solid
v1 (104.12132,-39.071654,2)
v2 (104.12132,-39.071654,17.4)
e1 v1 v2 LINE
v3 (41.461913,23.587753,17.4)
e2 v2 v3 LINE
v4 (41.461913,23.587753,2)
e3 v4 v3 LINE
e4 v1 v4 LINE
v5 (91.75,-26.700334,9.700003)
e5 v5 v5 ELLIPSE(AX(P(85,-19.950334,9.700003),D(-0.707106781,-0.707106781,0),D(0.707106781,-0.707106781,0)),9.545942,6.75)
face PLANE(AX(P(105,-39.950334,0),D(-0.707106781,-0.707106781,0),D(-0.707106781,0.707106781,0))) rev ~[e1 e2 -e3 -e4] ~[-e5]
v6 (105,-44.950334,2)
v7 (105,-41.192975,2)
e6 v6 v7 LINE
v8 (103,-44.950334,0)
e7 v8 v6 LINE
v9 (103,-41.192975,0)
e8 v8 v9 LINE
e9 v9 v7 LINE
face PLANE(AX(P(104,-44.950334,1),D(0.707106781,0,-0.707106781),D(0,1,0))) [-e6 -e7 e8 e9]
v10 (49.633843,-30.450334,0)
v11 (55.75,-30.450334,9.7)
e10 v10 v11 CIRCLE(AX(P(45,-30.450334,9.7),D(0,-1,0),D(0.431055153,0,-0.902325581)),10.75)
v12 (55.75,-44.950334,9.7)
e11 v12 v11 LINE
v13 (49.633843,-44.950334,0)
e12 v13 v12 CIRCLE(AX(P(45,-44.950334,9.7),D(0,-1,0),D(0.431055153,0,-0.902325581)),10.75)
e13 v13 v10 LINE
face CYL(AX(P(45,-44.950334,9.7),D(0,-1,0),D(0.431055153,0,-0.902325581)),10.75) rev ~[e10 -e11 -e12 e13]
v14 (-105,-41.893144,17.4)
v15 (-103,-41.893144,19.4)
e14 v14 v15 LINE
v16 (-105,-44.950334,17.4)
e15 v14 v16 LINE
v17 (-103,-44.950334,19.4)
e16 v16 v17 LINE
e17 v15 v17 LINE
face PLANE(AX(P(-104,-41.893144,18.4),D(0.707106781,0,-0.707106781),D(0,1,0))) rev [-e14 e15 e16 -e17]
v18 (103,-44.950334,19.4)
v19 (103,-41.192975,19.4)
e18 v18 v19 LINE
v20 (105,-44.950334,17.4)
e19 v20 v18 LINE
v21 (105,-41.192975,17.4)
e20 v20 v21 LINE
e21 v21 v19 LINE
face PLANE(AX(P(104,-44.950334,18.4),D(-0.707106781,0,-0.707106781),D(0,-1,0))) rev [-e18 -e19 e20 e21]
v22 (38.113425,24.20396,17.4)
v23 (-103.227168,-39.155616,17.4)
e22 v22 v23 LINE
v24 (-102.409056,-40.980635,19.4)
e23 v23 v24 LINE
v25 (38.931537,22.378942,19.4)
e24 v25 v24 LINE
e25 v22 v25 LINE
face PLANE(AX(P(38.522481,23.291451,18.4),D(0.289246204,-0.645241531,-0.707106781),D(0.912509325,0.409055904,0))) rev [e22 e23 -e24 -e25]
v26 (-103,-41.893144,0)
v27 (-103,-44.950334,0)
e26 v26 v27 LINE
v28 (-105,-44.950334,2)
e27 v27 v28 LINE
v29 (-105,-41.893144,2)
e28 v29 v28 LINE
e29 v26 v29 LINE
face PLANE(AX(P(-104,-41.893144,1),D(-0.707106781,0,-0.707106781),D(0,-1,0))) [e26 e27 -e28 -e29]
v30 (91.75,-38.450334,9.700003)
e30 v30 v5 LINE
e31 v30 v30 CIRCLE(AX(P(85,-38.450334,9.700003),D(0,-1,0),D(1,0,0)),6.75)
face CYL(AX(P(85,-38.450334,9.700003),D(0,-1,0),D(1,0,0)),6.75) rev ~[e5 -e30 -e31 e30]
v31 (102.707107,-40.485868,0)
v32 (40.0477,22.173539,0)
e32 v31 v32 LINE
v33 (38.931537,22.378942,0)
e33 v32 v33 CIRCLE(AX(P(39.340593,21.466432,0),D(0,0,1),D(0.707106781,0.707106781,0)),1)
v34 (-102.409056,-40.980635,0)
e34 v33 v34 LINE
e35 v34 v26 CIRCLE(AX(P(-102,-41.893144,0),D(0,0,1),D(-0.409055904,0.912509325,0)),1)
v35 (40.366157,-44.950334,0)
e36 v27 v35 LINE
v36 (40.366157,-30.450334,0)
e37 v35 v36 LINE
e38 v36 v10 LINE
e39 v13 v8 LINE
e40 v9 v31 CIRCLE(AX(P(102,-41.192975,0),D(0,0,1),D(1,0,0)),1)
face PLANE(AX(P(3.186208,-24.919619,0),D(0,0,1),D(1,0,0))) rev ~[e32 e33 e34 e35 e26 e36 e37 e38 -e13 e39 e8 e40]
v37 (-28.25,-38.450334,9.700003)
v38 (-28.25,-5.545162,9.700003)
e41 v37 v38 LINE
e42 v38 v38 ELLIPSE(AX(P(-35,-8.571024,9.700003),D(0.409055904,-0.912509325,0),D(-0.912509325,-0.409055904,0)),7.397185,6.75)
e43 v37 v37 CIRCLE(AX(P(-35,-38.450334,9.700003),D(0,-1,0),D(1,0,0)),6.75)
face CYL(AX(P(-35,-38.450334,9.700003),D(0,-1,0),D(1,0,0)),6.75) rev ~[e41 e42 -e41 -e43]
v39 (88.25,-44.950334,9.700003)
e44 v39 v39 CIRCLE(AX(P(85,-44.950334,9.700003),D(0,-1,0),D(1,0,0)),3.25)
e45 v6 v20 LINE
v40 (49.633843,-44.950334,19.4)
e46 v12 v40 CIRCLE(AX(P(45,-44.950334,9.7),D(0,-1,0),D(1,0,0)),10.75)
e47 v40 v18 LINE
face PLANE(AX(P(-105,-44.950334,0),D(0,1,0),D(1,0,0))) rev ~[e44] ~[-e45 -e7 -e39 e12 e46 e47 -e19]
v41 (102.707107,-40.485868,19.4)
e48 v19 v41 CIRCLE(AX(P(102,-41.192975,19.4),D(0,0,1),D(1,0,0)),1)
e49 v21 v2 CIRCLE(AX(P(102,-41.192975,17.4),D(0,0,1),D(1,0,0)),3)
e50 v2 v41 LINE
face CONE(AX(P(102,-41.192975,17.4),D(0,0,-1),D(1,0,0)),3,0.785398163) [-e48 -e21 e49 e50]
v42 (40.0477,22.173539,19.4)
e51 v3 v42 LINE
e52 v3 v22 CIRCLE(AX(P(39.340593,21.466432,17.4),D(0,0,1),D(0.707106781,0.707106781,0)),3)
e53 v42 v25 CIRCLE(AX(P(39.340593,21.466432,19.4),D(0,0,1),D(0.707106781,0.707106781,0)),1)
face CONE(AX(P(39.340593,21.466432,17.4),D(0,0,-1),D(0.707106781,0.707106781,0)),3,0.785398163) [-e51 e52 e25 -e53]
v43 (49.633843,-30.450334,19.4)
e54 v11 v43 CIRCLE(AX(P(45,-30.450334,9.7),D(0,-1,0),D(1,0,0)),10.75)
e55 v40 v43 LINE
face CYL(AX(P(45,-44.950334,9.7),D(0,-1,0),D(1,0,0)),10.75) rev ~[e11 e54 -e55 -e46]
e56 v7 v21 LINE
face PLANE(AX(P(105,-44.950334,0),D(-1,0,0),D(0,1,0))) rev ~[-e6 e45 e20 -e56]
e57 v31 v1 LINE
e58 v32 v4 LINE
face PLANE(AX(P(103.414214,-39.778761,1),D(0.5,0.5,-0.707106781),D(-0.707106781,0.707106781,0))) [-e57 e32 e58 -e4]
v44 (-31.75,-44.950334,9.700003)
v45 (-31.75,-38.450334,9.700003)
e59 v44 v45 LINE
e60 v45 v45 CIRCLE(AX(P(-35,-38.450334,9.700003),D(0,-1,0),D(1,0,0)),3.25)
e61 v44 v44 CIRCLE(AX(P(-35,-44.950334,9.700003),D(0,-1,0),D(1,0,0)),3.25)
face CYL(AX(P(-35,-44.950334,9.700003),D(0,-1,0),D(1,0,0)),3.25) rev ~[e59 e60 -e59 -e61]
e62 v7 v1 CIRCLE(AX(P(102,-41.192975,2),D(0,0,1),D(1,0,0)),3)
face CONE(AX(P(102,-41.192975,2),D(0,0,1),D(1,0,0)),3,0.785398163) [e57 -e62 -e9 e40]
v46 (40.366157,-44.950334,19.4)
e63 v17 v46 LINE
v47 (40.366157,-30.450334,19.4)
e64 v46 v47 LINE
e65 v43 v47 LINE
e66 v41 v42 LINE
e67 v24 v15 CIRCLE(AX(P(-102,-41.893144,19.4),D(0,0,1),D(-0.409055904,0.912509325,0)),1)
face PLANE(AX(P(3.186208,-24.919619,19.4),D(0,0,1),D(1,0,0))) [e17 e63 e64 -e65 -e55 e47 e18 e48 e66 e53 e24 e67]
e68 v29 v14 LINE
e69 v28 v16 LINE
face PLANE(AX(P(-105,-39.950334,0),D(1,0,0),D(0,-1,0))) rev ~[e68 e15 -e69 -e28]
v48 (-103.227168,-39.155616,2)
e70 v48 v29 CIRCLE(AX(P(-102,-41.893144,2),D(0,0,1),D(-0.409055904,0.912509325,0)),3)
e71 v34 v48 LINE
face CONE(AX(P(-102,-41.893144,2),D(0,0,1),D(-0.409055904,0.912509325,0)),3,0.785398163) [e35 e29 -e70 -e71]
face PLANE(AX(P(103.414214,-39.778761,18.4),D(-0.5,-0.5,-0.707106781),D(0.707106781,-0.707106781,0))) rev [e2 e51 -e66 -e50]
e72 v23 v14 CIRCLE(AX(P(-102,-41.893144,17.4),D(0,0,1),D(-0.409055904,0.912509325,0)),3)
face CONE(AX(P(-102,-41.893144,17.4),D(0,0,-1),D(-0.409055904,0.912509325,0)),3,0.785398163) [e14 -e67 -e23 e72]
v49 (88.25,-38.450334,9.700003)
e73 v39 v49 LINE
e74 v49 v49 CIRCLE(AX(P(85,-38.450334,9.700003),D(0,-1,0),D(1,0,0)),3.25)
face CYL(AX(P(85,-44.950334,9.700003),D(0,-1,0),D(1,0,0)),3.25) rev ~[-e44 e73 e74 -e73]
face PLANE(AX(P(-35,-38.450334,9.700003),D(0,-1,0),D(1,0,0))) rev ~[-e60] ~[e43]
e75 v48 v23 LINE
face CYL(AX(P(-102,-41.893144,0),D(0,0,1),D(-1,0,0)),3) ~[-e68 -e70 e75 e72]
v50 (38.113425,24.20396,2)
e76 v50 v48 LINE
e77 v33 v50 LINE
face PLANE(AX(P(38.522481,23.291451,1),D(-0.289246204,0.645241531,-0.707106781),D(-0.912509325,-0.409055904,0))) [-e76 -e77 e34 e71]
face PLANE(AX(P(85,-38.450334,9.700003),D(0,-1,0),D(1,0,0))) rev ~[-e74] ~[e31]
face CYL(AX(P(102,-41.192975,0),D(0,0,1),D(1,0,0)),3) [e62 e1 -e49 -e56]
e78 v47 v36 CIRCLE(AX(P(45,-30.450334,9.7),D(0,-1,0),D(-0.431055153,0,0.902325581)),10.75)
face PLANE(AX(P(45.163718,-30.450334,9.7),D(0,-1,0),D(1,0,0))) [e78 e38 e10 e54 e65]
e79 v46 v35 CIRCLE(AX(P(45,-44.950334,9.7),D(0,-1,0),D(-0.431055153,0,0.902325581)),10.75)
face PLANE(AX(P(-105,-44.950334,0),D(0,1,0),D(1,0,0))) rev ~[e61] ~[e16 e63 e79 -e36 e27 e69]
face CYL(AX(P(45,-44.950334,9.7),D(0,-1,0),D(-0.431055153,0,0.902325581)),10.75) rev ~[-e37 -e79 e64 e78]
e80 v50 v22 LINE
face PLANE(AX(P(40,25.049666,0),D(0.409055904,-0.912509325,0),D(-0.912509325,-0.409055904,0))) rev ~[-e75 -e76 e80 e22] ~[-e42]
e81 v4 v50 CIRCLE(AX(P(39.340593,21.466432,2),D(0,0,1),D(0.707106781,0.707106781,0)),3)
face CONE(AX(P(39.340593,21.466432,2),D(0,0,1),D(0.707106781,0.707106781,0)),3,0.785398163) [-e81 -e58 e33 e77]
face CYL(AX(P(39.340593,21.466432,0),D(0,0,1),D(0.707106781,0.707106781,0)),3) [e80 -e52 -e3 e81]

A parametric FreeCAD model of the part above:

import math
import FreeCAD as App
import Part
import Sketcher
from FreeCAD import Vector
Q = App.Units.Quantity


def edges_at(feature, points):
    """Names of the edges that pass closest to the given points."""
    edges = feature.Shape.Edges
    near = lambda p: min(range(len(edges)), key=lambda i: edges[i].distToShape(Part.Vertex(*p))[0])
    return sorted({f"Edge{near(p) + 1}" for p in points})

doc = App.newDocument("Part")
body = doc.addObject("PartDesign::Body", "Body")

sketch1 = body.newObject("Sketcher::SketchObject", "Sketch")
sketch1.AttachmentSupport = (doc.getObject("XY_Plane"), [""])
sketch1.MapMode = "FlatFace"
sketch1.addGeometry(Part.LineSegment(Vector(-105, -40, 0), Vector(-105, -45, 0)), False)
sketch1.addGeometry(Part.LineSegment(Vector(-105, -45, 0), Vector(105, -45, 0)), False)
sketch1.addGeometry(Part.LineSegment(Vector(105, -45, 0), Vector(105, -40, 0)), False)
sketch1.addGeometry(Part.LineSegment(Vector(105, -40, 0), Vector(40, 25, 0)), False)
sketch1.addGeometry(Part.LineSegment(Vector(40, 25, 0), Vector(-105, -40, 0)), False)
sketch1.addConstraint(Sketcher.Constraint("Coincident", 0, 2, 1, 1))
sketch1.addConstraint(Sketcher.Constraint("Coincident", 1, 2, 2, 1))
sketch1.addConstraint(Sketcher.Constraint("Coincident", 2, 2, 3, 1))
sketch1.addConstraint(Sketcher.Constraint("Coincident", 3, 2, 4, 1))
sketch1.addConstraint(Sketcher.Constraint("Coincident", 4, 2, 0, 1))
sketch1.addConstraint(Sketcher.Constraint("Vertical", 0))
sketch1.addConstraint(Sketcher.Constraint("Horizontal", 1))
sketch1.addConstraint(Sketcher.Constraint("Vertical", 2))
sketch1.addConstraint(Sketcher.Constraint("Symmetric", 2, 2, 4, 2, -2))
sketch1.addConstraint(Sketcher.Constraint("DistanceX", 1, 1, 1, 2, 210.0))
sketch1.addConstraint(Sketcher.Constraint("DistanceY", 0, 2, 0, 1, 5.0))
sketch1.addConstraint(Sketcher.Constraint("Angle", 3, Q("135 deg")))
sketch1.addConstraint(Sketcher.Constraint("DistanceX", -1, 1, 3, 2, 40.0))
sketch1.addConstraint(Sketcher.Constraint("DistanceY", 0, 2, -1, 1, 44.950334))
pad1 = body.newObject("PartDesign::Pad", "Pad")
pad1.Profile = sketch1
pad1.Length = 19.4
doc.recompute()

fillet = body.newObject("PartDesign::Fillet", "Fillet")
fillet.Base = (pad1, edges_at(pad1, [(40, 25.05, 9.7), (105, -39.95, 9.7), (-105, -39.95, 9.7)]))
fillet.Radius = 3

sketch2 = body.newObject("Sketcher::SketchObject", "Sketch001")
sketch2.AttachmentSupport = (doc.getObject("XZ_Plane"), [""])
sketch2.MapMode = "FlatFace"
sketch2.AttachmentOffset = App.Placement(Vector(0, 0, 44.950334), App.Rotation())
sketch2.addGeometry(Part.ArcOfCircle(Part.Circle(Vector(45, 10, 0), Vector(0, 0, 1), 11), math.radians(-64), math.radians(0)), False)
sketch2.addGeometry(Part.ArcOfCircle(Part.Circle(Vector(45, 10, 0), Vector(0, 0, 1), 11), math.radians(0), math.radians(64)), False)
sketch2.addGeometry(Part.LineSegment(Vector(50, 19, 0), Vector(40, 19, 0)), False)
sketch2.addGeometry(Part.ArcOfCircle(Part.Circle(Vector(45, 10, 0), Vector(0, 0, 1), 11), math.radians(116), math.radians(244)), False)
sketch2.addGeometry(Part.LineSegment(Vector(40, 0, 0), Vector(50, 0, 0)), False)
sketch2.addConstraint(Sketcher.Constraint("Tangent", 0, 2, 1, 1))
sketch2.addConstraint(Sketcher.Constraint("Coincident", 1, 2, 2, 1))
sketch2.addConstraint(Sketcher.Constraint("Coincident", 2, 2, 3, 1))
sketch2.addConstraint(Sketcher.Constraint("Coincident", 3, 2, 4, 1))
sketch2.addConstraint(Sketcher.Constraint("Coincident", 4, 2, 0, 1))
sketch2.addConstraint(Sketcher.Constraint("Horizontal", 2))
sketch2.addConstraint(Sketcher.Constraint("Horizontal", 4))
sketch2.addConstraint(Sketcher.Constraint("Coincident", 3, 3, 0, 3))
sketch2.addConstraint(Sketcher.Constraint("Equal", 0, 1))
sketch2.addConstraint(Sketcher.Constraint("Equal", 1, 3))
sketch2.addConstraint(Sketcher.Constraint("PointOnObject", 3, 2, -1))
sketch2.addConstraint(Sketcher.Constraint("Horizontal", 3, 3, 0, 2))
sketch2.addConstraint(Sketcher.Constraint("Vertical", 2, 2, 3, 2))
sketch2.addConstraint(Sketcher.Constraint("Radius", 0, 10.75))
sketch2.addConstraint(Sketcher.Constraint("DistanceX", -1, 1, 0, 3, 45.0))
sketch2.addConstraint(Sketcher.Constraint("DistanceY", -1, 1, 0, 3, 9.7))
pocket1 = body.newObject("PartDesign::Pocket", "Pocket")
pocket1.Profile = sketch2
pocket1.Length = 14.5

sketch3 = body.newObject("Sketcher::SketchObject", "Sketch002")
sketch3.AttachmentSupport = (doc.getObject("XZ_Plane"), [""])
sketch3.MapMode = "FlatFace"
sketch3.AttachmentOffset = App.Placement(Vector(0, 0, 44.950334), App.Rotation())
sketch3.addGeometry(Part.Circle(Vector(-35, 9.7, 0), Vector(0, 0, 1), 3.2), False)
sketch3.addGeometry(Part.Circle(Vector(85, 9.7, 0), Vector(0, 0, 1), 3.2), False)
sketch3.addConstraint(Sketcher.Constraint("Equal", 0, 1))
sketch3.addConstraint(Sketcher.Constraint("Horizontal", 0, 3, 1, 3))
sketch3.addConstraint(Sketcher.Constraint("Diameter", 0, 6.5))
sketch3.addConstraint(Sketcher.Constraint("DistanceX", 0, 3, -1, 1, 35.0))
sketch3.addConstraint(Sketcher.Constraint("DistanceX", -1, 1, 1, 3, 85.0))
sketch3.addConstraint(Sketcher.Constraint("DistanceY", -1, 1, 0, 3, 9.700003))
pocket2 = body.newObject("PartDesign::Pocket", "Pocket001")
pocket2.Profile = sketch3
pocket2.Type = "ThroughAll"

sketch4 = body.newObject("Sketcher::SketchObject", "Sketch003")
sketch4.AttachmentSupport = (doc.getObject("XZ_Plane"), [""])
sketch4.MapMode = "FlatFace"
sketch4.AttachmentOffset = App.Placement(Vector(0, 0, 38.450334), App.Rotation())
sketch4.addGeometry(Part.Circle(Vector(85, 10, 0), Vector(0, 0, 1), 7), False)
sketch4.addGeometry(Part.Circle(Vector(-35, 10, 0), Vector(0, 0, 1), 7), False)
sketch4.addConstraint(Sketcher.Constraint("Equal", 0, 1))
sketch4.addConstraint(Sketcher.Constraint("Horizontal", 0, 3, 1, 3))
sketch4.addConstraint(Sketcher.Constraint("Diameter", 0, 13.5))
sketch4.addConstraint(Sketcher.Constraint("DistanceX", -1, 1, 0, 3, 85.0))
sketch4.addConstraint(Sketcher.Constraint("DistanceX", 1, 3, -1, 1, 35.0))
sketch4.addConstraint(Sketcher.Constraint("DistanceY", -1, 1, 0, 3, 9.700003))
pocket3 = body.newObject("PartDesign::Pocket", "Pocket002")
pocket3.Profile = sketch4
pocket3.Type = "ThroughAll"
doc.recompute()

chamfer = body.newObject("PartDesign::Chamfer", "Chamfer")
chamfer.Base = (pocket3, edges_at(pocket3, [
    (-105, -43.422, 19.4),
    (-104.518, -40.262, 19.4),
    (-32.557, -7.476, 19.4),
    (39.884, 24.417, 19.4),
    (72.792, -7.742, 19.4),
    (105, -43.072, 19.4),
    (72.792, -7.742, 0),
]))
chamfer.Size = 2

doc.recompute()
